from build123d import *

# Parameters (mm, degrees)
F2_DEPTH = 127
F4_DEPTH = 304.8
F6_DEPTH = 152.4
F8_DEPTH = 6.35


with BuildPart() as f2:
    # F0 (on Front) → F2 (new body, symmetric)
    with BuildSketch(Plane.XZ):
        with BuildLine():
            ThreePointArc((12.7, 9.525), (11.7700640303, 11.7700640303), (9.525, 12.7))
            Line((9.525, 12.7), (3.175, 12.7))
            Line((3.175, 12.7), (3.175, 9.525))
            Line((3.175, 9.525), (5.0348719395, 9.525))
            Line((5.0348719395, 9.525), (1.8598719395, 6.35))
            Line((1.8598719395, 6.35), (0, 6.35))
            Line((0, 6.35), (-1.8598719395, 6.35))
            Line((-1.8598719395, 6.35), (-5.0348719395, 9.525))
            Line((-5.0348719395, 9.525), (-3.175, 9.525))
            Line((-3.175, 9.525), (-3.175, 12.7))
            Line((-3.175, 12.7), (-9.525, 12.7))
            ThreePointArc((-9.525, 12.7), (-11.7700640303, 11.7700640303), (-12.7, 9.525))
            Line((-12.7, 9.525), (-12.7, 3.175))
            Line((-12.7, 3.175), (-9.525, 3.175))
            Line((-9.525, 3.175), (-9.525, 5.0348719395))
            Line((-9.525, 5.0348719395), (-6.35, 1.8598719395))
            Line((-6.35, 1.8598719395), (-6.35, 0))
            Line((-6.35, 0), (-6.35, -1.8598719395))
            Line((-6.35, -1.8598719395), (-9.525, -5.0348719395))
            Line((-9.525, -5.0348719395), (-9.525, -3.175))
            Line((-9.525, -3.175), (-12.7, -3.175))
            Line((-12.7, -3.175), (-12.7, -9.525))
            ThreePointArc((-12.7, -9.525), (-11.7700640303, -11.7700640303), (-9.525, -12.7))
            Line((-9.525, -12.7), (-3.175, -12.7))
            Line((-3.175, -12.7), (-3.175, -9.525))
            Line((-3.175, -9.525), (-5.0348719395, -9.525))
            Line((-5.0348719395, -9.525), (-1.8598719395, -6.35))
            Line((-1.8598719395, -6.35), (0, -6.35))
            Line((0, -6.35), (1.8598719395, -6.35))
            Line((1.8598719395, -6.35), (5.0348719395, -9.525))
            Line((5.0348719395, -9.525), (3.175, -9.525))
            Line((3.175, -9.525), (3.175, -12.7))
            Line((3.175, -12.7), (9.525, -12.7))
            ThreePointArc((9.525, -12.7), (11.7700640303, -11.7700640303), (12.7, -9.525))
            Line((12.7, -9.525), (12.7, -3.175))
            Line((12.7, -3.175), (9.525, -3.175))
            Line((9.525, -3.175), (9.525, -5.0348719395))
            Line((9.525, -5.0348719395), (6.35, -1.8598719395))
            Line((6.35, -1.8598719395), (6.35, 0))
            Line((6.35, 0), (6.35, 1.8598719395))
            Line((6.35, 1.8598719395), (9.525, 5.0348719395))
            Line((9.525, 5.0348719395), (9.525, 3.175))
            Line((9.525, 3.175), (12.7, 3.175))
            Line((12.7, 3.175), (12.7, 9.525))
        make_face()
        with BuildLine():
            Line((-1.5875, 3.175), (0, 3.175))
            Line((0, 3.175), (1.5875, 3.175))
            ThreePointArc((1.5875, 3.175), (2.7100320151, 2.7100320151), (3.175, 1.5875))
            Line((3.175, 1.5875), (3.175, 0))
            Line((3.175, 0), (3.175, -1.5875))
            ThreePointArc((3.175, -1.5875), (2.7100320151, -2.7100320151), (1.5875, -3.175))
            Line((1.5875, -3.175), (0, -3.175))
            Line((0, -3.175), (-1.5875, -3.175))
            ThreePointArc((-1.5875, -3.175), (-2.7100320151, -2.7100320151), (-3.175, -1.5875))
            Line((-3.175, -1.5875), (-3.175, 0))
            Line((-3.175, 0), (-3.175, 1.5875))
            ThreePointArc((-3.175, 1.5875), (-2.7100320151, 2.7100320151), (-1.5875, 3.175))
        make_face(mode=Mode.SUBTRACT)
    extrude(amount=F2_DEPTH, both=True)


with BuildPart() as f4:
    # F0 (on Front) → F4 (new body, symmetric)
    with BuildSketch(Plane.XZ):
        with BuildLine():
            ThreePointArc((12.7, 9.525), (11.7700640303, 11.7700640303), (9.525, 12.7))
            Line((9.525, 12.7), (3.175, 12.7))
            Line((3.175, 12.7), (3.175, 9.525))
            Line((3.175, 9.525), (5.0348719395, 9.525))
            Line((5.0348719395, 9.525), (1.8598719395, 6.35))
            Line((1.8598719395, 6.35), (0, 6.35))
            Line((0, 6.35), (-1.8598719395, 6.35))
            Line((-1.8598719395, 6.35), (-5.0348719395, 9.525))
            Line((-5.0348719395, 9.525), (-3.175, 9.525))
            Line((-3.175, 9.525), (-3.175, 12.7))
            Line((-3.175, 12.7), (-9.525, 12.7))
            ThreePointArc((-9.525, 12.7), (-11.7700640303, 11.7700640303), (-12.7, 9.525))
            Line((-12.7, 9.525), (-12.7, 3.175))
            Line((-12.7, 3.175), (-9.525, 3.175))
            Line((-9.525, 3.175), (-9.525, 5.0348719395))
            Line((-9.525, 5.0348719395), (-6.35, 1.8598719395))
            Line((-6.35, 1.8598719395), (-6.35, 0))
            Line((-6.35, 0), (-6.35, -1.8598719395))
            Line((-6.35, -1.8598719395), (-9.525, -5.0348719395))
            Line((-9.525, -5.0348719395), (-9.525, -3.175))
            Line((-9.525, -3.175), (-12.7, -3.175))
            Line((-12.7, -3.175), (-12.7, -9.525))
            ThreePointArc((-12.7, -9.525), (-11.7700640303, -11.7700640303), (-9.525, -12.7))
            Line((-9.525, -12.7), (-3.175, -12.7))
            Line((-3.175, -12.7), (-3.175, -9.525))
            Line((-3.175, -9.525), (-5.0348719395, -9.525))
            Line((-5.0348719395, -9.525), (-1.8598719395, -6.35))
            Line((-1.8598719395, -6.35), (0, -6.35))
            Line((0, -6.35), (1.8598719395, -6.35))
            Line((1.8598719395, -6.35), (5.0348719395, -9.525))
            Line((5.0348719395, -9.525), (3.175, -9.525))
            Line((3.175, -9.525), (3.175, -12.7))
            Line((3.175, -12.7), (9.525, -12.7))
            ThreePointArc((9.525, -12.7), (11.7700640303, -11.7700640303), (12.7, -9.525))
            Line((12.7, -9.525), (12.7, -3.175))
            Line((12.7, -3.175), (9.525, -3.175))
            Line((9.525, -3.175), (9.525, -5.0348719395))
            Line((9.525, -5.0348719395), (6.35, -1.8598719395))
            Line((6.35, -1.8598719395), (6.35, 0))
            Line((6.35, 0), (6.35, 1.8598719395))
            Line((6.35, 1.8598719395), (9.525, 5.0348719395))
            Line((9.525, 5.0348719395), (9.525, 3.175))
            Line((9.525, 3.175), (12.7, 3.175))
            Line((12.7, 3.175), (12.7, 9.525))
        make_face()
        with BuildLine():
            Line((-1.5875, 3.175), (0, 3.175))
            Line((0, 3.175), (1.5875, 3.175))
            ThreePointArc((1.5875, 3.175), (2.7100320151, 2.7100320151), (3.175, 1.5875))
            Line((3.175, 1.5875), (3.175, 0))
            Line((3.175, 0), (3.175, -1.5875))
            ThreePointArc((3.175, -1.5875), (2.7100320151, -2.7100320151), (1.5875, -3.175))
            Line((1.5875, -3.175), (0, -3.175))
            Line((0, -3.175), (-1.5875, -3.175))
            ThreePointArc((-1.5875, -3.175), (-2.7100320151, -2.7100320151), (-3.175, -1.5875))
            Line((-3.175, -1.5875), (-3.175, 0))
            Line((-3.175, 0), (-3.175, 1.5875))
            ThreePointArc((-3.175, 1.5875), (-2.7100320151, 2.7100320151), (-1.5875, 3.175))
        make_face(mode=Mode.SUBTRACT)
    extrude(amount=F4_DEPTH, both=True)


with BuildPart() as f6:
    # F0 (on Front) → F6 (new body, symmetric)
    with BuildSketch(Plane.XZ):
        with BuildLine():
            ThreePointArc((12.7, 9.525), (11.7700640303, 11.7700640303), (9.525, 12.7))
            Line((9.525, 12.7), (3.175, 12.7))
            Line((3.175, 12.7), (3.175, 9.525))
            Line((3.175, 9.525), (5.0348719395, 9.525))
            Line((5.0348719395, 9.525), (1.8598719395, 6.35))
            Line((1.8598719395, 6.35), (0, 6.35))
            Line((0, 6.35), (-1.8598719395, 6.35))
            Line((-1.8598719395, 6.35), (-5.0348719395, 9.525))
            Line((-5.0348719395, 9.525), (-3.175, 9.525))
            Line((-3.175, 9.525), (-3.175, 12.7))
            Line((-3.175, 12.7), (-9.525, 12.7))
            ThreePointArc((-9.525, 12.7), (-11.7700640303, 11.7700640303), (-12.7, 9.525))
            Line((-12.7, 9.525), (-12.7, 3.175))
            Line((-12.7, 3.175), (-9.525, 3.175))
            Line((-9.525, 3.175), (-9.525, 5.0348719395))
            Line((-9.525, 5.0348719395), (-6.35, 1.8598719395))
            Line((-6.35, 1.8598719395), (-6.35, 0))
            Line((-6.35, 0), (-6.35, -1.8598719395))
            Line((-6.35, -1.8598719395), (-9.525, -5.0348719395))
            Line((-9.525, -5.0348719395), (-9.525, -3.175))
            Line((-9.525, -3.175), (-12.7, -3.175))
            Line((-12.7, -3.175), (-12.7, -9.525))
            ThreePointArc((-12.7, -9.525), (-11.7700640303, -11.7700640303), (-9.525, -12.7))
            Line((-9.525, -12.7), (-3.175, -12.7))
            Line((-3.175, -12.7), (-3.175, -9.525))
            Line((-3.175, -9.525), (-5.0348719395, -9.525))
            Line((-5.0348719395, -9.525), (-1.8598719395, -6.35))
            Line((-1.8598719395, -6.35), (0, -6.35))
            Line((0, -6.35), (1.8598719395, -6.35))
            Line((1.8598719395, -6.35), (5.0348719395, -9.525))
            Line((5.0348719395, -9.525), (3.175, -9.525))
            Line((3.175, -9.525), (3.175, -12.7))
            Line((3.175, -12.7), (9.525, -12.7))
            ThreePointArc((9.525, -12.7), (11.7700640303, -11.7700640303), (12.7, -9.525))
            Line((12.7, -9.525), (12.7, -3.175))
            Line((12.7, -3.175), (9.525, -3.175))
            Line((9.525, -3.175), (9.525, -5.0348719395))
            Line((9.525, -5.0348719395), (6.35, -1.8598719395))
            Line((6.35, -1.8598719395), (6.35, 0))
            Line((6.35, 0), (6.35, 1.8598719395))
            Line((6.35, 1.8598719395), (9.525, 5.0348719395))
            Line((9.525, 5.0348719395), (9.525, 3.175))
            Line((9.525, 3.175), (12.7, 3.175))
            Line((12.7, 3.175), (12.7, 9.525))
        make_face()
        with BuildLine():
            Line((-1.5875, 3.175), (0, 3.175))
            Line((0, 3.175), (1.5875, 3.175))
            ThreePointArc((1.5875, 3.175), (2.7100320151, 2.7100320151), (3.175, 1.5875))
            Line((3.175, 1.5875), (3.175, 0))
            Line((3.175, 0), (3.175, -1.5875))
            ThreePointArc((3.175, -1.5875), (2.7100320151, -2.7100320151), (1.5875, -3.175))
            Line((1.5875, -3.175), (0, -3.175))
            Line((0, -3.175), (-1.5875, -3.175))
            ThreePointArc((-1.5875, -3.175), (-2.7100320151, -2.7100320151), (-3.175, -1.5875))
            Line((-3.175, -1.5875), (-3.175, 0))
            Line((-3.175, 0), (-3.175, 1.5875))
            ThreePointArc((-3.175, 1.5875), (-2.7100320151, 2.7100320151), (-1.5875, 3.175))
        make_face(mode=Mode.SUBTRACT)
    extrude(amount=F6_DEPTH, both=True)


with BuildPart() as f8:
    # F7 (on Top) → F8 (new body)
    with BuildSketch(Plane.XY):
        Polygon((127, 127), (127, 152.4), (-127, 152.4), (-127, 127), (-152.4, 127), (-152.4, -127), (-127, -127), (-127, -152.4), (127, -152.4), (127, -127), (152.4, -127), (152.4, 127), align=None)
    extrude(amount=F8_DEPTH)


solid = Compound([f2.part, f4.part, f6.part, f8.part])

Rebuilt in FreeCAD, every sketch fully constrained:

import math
import FreeCAD as App
import Part
import Sketcher

V = App.Vector
Q = App.Units.Quantity

doc = App.newDocument("Part")
params = doc.addObject("Spreadsheet::Sheet", "Params")
for row, (alias, value) in enumerate([
    ("sketch1_radius", "0.125 in"),
    ("sketch1_radius2", "0.0625 in"),
    ("sketch1_width", "0.25 in"),
    ("pad1_length", "10 in"),
    ("sketch2_radius", "0.125 in"),
    ("sketch2_radius2", "0.0625 in"),
    ("sketch2_width", "0.25 in"),
    ("pad2_length", "24 in"),
    ("sketch3_radius", "0.125 in"),
    ("sketch3_radius2", "0.0625 in"),
    ("sketch3_width", "0.25 in"),
    ("pad3_length", "12 in"),
    ("sketch4_width", "10 in"),
    ("sketch4_width2", "1 in"),
    ("pad4_length", "0.25 in"),
], start=1):
    params.set(f"A{row}", alias)
    params.set(f"B{row}", "=" + value)
    params.setAlias(f"B{row}", alias)

body = doc.addObject("PartDesign::Body", "Body")

sketch1 = body.newObject("Sketcher::SketchObject", "Sketch")
sketch1.AttachmentSupport = (doc.getObject("XZ_Plane"), [""])
sketch1.MapMode = "FlatFace"
sketch1.addGeometry([
    Part.ArcOfCircle(Part.Circle(V(9.5, 9.5, 0), V(0, 0, 1), 3.2), math.radians(0), math.radians(90)),
    Part.LineSegment(V(9.5, 12.7, 0), V(3.2, 12.7, 0)),
    Part.LineSegment(V(3.2, 12.7, 0), V(3.2, 9.5, 0)),
    Part.LineSegment(V(3.2, 9.5, 0), V(5, 9.5, 0)),
    Part.LineSegment(V(5, 9.5, 0), V(1.9, 6.3, 0)),
    Part.LineSegment(V(1.9, 6.3, 0), V(-1.9, 6.3, 0)),
    Part.LineSegment(V(-1.9, 6.3, 0), V(-5, 9.5, 0)),
    Part.LineSegment(V(-5, 9.5, 0), V(-3.2, 9.5, 0)),
    Part.LineSegment(V(-3.2, 9.5, 0), V(-3.2, 12.7, 0)),
    Part.LineSegment(V(-3.2, 12.7, 0), V(-9.5, 12.7, 0)),
    Part.ArcOfCircle(Part.Circle(V(-9.5, 9.5, 0), V(0, 0, 1), 3.2), math.radians(90), math.radians(180)),
    Part.LineSegment(V(-12.7, 9.5, 0), V(-12.7, 3.2, 0)),
    Part.LineSegment(V(-12.7, 3.2, 0), V(-9.5, 3.2, 0)),
    Part.LineSegment(V(-9.5, 3.2, 0), V(-9.5, 5, 0)),
    Part.LineSegment(V(-9.5, 5, 0), V(-6.3, 1.9, 0)),
    Part.LineSegment(V(-6.3, 1.9, 0), V(-6.3, -1.9, 0)),
    Part.LineSegment(V(-6.3, -1.9, 0), V(-9.5, -5, 0)),
    Part.LineSegment(V(-9.5, -5, 0), V(-9.5, -3.2, 0)),
    Part.LineSegment(V(-9.5, -3.2, 0), V(-12.7, -3.2, 0)),
    Part.LineSegment(V(-12.7, -3.2, 0), V(-12.7, -9.5, 0)),
    Part.ArcOfCircle(Part.Circle(V(-9.5, -9.5, 0), V(0, 0, 1), 3.2), math.radians(180), math.radians(270)),
    Part.LineSegment(V(-9.5, -12.7, 0), V(-3.2, -12.7, 0)),
    Part.LineSegment(V(-3.2, -12.7, 0), V(-3.2, -9.5, 0)),
    Part.LineSegment(V(-3.2, -9.5, 0), V(-5, -9.5, 0)),
    Part.LineSegment(V(-5, -9.5, 0), V(-1.9, -6.3, 0)),
    Part.LineSegment(V(-1.9, -6.3, 0), V(1.9, -6.3, 0)),
    Part.LineSegment(V(1.9, -6.3, 0), V(5, -9.5, 0)),
    Part.LineSegment(V(5, -9.5, 0), V(3.2, -9.5, 0)),
    Part.LineSegment(V(3.2, -9.5, 0), V(3.2, -12.7, 0)),
    Part.LineSegment(V(3.2, -12.7, 0), V(9.5, -12.7, 0)),
    Part.ArcOfCircle(Part.Circle(V(9.5, -9.5, 0), V(0, 0, 1), 3.2), math.radians(-90), math.radians(0)),
    Part.LineSegment(V(12.7, -9.5, 0), V(12.7, -3.2, 0)),
    Part.LineSegment(V(12.7, -3.2, 0), V(9.5, -3.2, 0)),
    Part.LineSegment(V(9.5, -3.2, 0), V(9.5, -5, 0)),
    Part.LineSegment(V(9.5, -5, 0), V(6.3, -1.9, 0)),
    Part.LineSegment(V(6.3, -1.9, 0), V(6.3, 1.9, 0)),
    Part.LineSegment(V(6.3, 1.9, 0), V(9.5, 5, 0)),
    Part.LineSegment(V(9.5, 5, 0), V(9.5, 3.2, 0)),
    Part.LineSegment(V(9.5, 3.2, 0), V(12.7, 3.2, 0)),
    Part.LineSegment(V(12.7, 3.2, 0), V(12.7, 9.5, 0)),
    Part.ArcOfCircle(Part.Circle(V(-1.6, 1.6, 0), V(0, 0, 1), 1.6), math.radians(90), math.radians(180)),
    Part.LineSegment(V(-1.6, 3.2, 0), V(1.6, 3.2, 0)),
    Part.ArcOfCircle(Part.Circle(V(1.6, 1.6, 0), V(0, 0, 1), 1.6), math.radians(0), math.radians(90)),
    Part.LineSegment(V(3.2, 1.6, 0), V(3.2, -1.6, 0)),
    Part.ArcOfCircle(Part.Circle(V(1.6, -1.6, 0), V(0, 0, 1), 1.6), math.radians(-90), math.radians(0)),
    Part.LineSegment(V(1.6, -3.2, 0), V(-1.6, -3.2, 0)),
    Part.ArcOfCircle(Part.Circle(V(-1.6, -1.6, 0), V(0, 0, 1), 1.6), math.radians(180), math.radians(270)),
    Part.LineSegment(V(-3.2, -1.6, 0), V(-3.2, 1.6, 0)),
], False)
sketch1.addConstraint([
    Sketcher.Constraint("Tangent", 0, 2, 1, 1),
    Sketcher.Constraint("Coincident", 1, 2, 2, 1),
    Sketcher.Constraint("Coincident", 2, 2, 3, 1),
    Sketcher.Constraint("Coincident", 3, 2, 4, 1),
    Sketcher.Constraint("Coincident", 4, 2, 5, 1),
    Sketcher.Constraint("Coincident", 5, 2, 6, 1),
    Sketcher.Constraint("Coincident", 6, 2, 7, 1),
    Sketcher.Constraint("Coincident", 7, 2, 8, 1),
    Sketcher.Constraint("Coincident", 8, 2, 9, 1),
    Sketcher.Constraint("Tangent", 9, 2, 10, 1),
    Sketcher.Constraint("Tangent", 10, 2, 11, 1),
    Sketcher.Constraint("Coincident", 11, 2, 12, 1),
    Sketcher.Constraint("Coincident", 12, 2, 13, 1),
    Sketcher.Constraint("Coincident", 13, 2, 14, 1),
    Sketcher.Constraint("Coincident", 14, 2, 15, 1),
    Sketcher.Constraint("Coincident", 15, 2, 16, 1),
    Sketcher.Constraint("Coincident", 16, 2, 17, 1),
    Sketcher.Constraint("Coincident", 17, 2, 18, 1),
    Sketcher.Constraint("Coincident", 18, 2, 19, 1),
    Sketcher.Constraint("Tangent", 19, 2, 20, 1),
    Sketcher.Constraint("Tangent", 20, 2, 21, 1),
    Sketcher.Constraint("Coincident", 21, 2, 22, 1),
    Sketcher.Constraint("Coincident", 22, 2, 23, 1),
    Sketcher.Constraint("Coincident", 23, 2, 24, 1),
    Sketcher.Constraint("Coincident", 24, 2, 25, 1),
    Sketcher.Constraint("Coincident", 25, 2, 26, 1),
    Sketcher.Constraint("Coincident", 26, 2, 27, 1),
    Sketcher.Constraint("Coincident", 27, 2, 28, 1),
    Sketcher.Constraint("Coincident", 28, 2, 29, 1),
    Sketcher.Constraint("Tangent", 29, 2, 30, 1),
    Sketcher.Constraint("Tangent", 30, 2, 31, 1),
    Sketcher.Constraint("Coincident", 31, 2, 32, 1),
    Sketcher.Constraint("Coincident", 32, 2, 33, 1),
    Sketcher.Constraint("Coincident", 33, 2, 34, 1),
    Sketcher.Constraint("Coincident", 34, 2, 35, 1),
    Sketcher.Constraint("Coincident", 35, 2, 36, 1),
    Sketcher.Constraint("Coincident", 36, 2, 37, 1),
    Sketcher.Constraint("Coincident", 37, 2, 38, 1),
    Sketcher.Constraint("Coincident", 38, 2, 39, 1),
    Sketcher.Constraint("Tangent", 39, 2, 0, 1),
    Sketcher.Constraint("Tangent", 40, 1, 41, 1),
    Sketcher.Constraint("Tangent", 41, 2, 42, 2),
    Sketcher.Constraint("Tangent", 42, 1, 43, 1),
    Sketcher.Constraint("Tangent", 43, 2, 44, 2),
    Sketcher.Constraint("Tangent", 44, 1, 45, 1),
    Sketcher.Constraint("Tangent", 45, 2, 46, 2),
    Sketcher.Constraint("Tangent", 46, 1, 47, 1),
    Sketcher.Constraint("Tangent", 47, 2, 40, 2),
    Sketcher.Constraint("Horizontal", 1),
    Sketcher.Constraint("Vertical", 2),
    Sketcher.Constraint("Horizontal", 3),
    Sketcher.Constraint("Horizontal", 5),
    Sketcher.Constraint("Horizontal", 7),
    Sketcher.Constraint("Vertical", 8),
    Sketcher.Constraint("Horizontal", 9),
    Sketcher.Constraint("Vertical", 11),
    Sketcher.Constraint("Horizontal", 12),
    Sketcher.Constraint("Vertical", 13),
    Sketcher.Constraint("Vertical", 15),
    Sketcher.Constraint("Vertical", 17),
    Sketcher.Constraint("Horizontal", 18),
    Sketcher.Constraint("Vertical", 19),
    Sketcher.Constraint("Horizontal", 21),
    Sketcher.Constraint("Vertical", 22),
    Sketcher.Constraint("Horizontal", 23),
    Sketcher.Constraint("Horizontal", 25),
    Sketcher.Constraint("Horizontal", 27),
    Sketcher.Constraint("Vertical", 28),
    Sketcher.Constraint("Horizontal", 29),
    Sketcher.Constraint("Vertical", 31),
    Sketcher.Constraint("Horizontal", 32),
    Sketcher.Constraint("Vertical", 33),
    Sketcher.Constraint("Vertical", 35),
    Sketcher.Constraint("Vertical", 37),
    Sketcher.Constraint("Horizontal", 38),
    Sketcher.Constraint("Vertical", 39),
    Sketcher.Constraint("Horizontal", 41),
    Sketcher.Constraint("Vertical", 43),
    Sketcher.Constraint("Horizontal", 45),
    Sketcher.Constraint("Vertical", 47),
    Sketcher.Constraint("Equal", 0, 10),
    Sketcher.Constraint("Equal", 10, 20),
    Sketcher.Constraint("Equal", 20, 30),
    Sketcher.Constraint("Equal", 40, 42),
    Sketcher.Constraint("Equal", 42, 44),
    Sketcher.Constraint("Equal", 44, 46),
    Sketcher.Constraint("Symmetric", 0, 3, 20, 3, -1, 1),
    Sketcher.Constraint("Symmetric", 10, 3, 30, 3, -1, 1),
    Sketcher.Constraint("Symmetric", 40, 3, 44, 3, -1, 1),
    Sketcher.Constraint("Symmetric", 2, 2, 22, 2, -1, 1),
    Sketcher.Constraint("Symmetric", 4, 2, 24, 2, -1, 1),
    Sketcher.Constraint("Symmetric", 6, 2, 26, 2, -1, 1),
    Sketcher.Constraint("Symmetric", 12, 2, 32, 2, -1, 1),
    Sketcher.Constraint("Symmetric", 14, 2, 34, 2, -1, 1),
    Sketcher.Constraint("Symmetric", 16, 2, 36, 2, -1, 1),
    Sketcher.Constraint("Symmetric", 0, 3, 10, 3, -2),
    Sketcher.Constraint("Symmetric", 3, 2, 6, 2, -2),
    Sketcher.Constraint("Symmetric", 17, 2, 32, 2, -2),
    Sketcher.Constraint("Perpendicular", 4, 6),
    Sketcher.Constraint("Parallel", 6, 14),
    Sketcher.Constraint("Perpendicular", 14, 16),
    Sketcher.Constraint("Parallel", 16, 24),
    Sketcher.Constraint("Perpendicular", 24, 26),
    Sketcher.Constraint("Parallel", 26, 34),
    Sketcher.Constraint("Perpendicular", 34, 36),
    Sketcher.Constraint("Horizontal", 10, 3, 2, 2),
    Sketcher.Constraint("Horizontal", 16, 2, 33, 2),
    Sketcher.Constraint("Horizontal", 15, 2, 34, 2),
    Sketcher.Constraint("Horizontal", 12, 2, 37, 2),
    Sketcher.Constraint("Horizontal", 38, 2, 40, 1),
    Sketcher.Constraint("Vertical", 9, 2, 12, 2),
    Sketcher.Constraint("Vertical", 8, 2, 21, 2),
    Sketcher.Constraint("Vertical", 2, 2, 27, 2),
    Sketcher.Constraint("Vertical", 28, 2, 42, 1),
    Sketcher.Constraint("Equal", 38, 41),
    Sketcher.Constraint("Equal", 29, 11),
    Sketcher.Constraint("Equal", 27, 13),
    Sketcher.Constraint("Equal", 25, 15),
    Sketcher.Constraint("Equal", 28, 43),
    Sketcher.Constraint("Radius", 0, Q("0.125 in")),
    Sketcher.Constraint("Radius", 40, Q("0.0625 in")),
    Sketcher.Constraint("DistanceX", 1, 2, 1, 1, Q("0.25 in")),
    Sketcher.Constraint("DistanceY", -1, 1, 4, 2, Q("0.25 in")),
    Sketcher.Constraint("DistanceX", 3, 1, 3, 2, Q("1.859872 mm")),
])
sketch1.setExpression("Constraints[119]", "Params.sketch1_radius")
sketch1.setExpression("Constraints[120]", "Params.sketch1_radius2")
sketch1.setExpression("Constraints[121]", "Params.sketch1_width")
pad1 = body.newObject("PartDesign::Pad", "Pad")
pad1.Profile = sketch1
pad1.setExpression("Length", "Params.pad1_length")
pad1.Midplane = True
body2 = doc.addObject("PartDesign::Body", "Body001")

sketch2 = body2.newObject("Sketcher::SketchObject", "Sketch001")
sketch2.AttachmentSupport = (doc.getObject("XZ_Plane001"), [""])
sketch2.MapMode = "FlatFace"
sketch2.addGeometry([
    Part.ArcOfCircle(Part.Circle(V(9.5, 9.5, 0), V(0, 0, 1), 3.2), math.radians(0), math.radians(90)),
    Part.LineSegment(V(9.5, 12.7, 0), V(3.2, 12.7, 0)),
    Part.LineSegment(V(3.2, 12.7, 0), V(3.2, 9.5, 0)),
    Part.LineSegment(V(3.2, 9.5, 0), V(5, 9.5, 0)),
    Part.LineSegment(V(5, 9.5, 0), V(1.9, 6.3, 0)),
    Part.LineSegment(V(1.9, 6.3, 0), V(-1.9, 6.3, 0)),
    Part.LineSegment(V(-1.9, 6.3, 0), V(-5, 9.5, 0)),
    Part.LineSegment(V(-5, 9.5, 0), V(-3.2, 9.5, 0)),
    Part.LineSegment(V(-3.2, 9.5, 0), V(-3.2, 12.7, 0)),
    Part.LineSegment(V(-3.2, 12.7, 0), V(-9.5, 12.7, 0)),
    Part.ArcOfCircle(Part.Circle(V(-9.5, 9.5, 0), V(0, 0, 1), 3.2), math.radians(90), math.radians(180)),
    Part.LineSegment(V(-12.7, 9.5, 0), V(-12.7, 3.2, 0)),
    Part.LineSegment(V(-12.7, 3.2, 0), V(-9.5, 3.2, 0)),
    Part.LineSegment(V(-9.5, 3.2, 0), V(-9.5, 5, 0)),
    Part.LineSegment(V(-9.5, 5, 0), V(-6.3, 1.9, 0)),
    Part.LineSegment(V(-6.3, 1.9, 0), V(-6.3, -1.9, 0)),
    Part.LineSegment(V(-6.3, -1.9, 0), V(-9.5, -5, 0)),
    Part.LineSegment(V(-9.5, -5, 0), V(-9.5, -3.2, 0)),
    Part.LineSegment(V(-9.5, -3.2, 0), V(-12.7, -3.2, 0)),
    Part.LineSegment(V(-12.7, -3.2, 0), V(-12.7, -9.5, 0)),
    Part.ArcOfCircle(Part.Circle(V(-9.5, -9.5, 0), V(0, 0, 1), 3.2), math.radians(180), math.radians(270)),
    Part.LineSegment(V(-9.5, -12.7, 0), V(-3.2, -12.7, 0)),
    Part.LineSegment(V(-3.2, -12.7, 0), V(-3.2, -9.5, 0)),
    Part.LineSegment(V(-3.2, -9.5, 0), V(-5, -9.5, 0)),
    Part.LineSegment(V(-5, -9.5, 0), V(-1.9, -6.3, 0)),
    Part.LineSegment(V(-1.9, -6.3, 0), V(1.9, -6.3, 0)),
    Part.LineSegment(V(1.9, -6.3, 0), V(5, -9.5, 0)),
    Part.LineSegment(V(5, -9.5, 0), V(3.2, -9.5, 0)),
    Part.LineSegment(V(3.2, -9.5, 0), V(3.2, -12.7, 0)),
    Part.LineSegment(V(3.2, -12.7, 0), V(9.5, -12.7, 0)),
    Part.ArcOfCircle(Part.Circle(V(9.5, -9.5, 0), V(0, 0, 1), 3.2), math.radians(-90), math.radians(0)),
    Part.LineSegment(V(12.7, -9.5, 0), V(12.7, -3.2, 0)),
    Part.LineSegment(V(12.7, -3.2, 0), V(9.5, -3.2, 0)),
    Part.LineSegment(V(9.5, -3.2, 0), V(9.5, -5, 0)),
    Part.LineSegment(V(9.5, -5, 0), V(6.3, -1.9, 0)),
    Part.LineSegment(V(6.3, -1.9, 0), V(6.3, 1.9, 0)),
    Part.LineSegment(V(6.3, 1.9, 0), V(9.5, 5, 0)),
    Part.LineSegment(V(9.5, 5, 0), V(9.5, 3.2, 0)),
    Part.LineSegment(V(9.5, 3.2, 0), V(12.7, 3.2, 0)),
    Part.LineSegment(V(12.7, 3.2, 0), V(12.7, 9.5, 0)),
    Part.ArcOfCircle(Part.Circle(V(-1.6, 1.6, 0), V(0, 0, 1), 1.6), math.radians(90), math.radians(180)),
    Part.LineSegment(V(-1.6, 3.2, 0), V(1.6, 3.2, 0)),
    Part.ArcOfCircle(Part.Circle(V(1.6, 1.6, 0), V(0, 0, 1), 1.6), math.radians(0), math.radians(90)),
    Part.LineSegment(V(3.2, 1.6, 0), V(3.2, -1.6, 0)),
    Part.ArcOfCircle(Part.Circle(V(1.6, -1.6, 0), V(0, 0, 1), 1.6), math.radians(-90), math.radians(0)),
    Part.LineSegment(V(1.6, -3.2, 0), V(-1.6, -3.2, 0)),
    Part.ArcOfCircle(Part.Circle(V(-1.6, -1.6, 0), V(0, 0, 1), 1.6), math.radians(180), math.radians(270)),
    Part.LineSegment(V(-3.2, -1.6, 0), V(-3.2, 1.6, 0)),
], False)
sketch2.addConstraint([
    Sketcher.Constraint("Tangent", 0, 2, 1, 1),
    Sketcher.Constraint("Coincident", 1, 2, 2, 1),
    Sketcher.Constraint("Coincident", 2, 2, 3, 1),
    Sketcher.Constraint("Coincident", 3, 2, 4, 1),
    Sketcher.Constraint("Coincident", 4, 2, 5, 1),
    Sketcher.Constraint("Coincident", 5, 2, 6, 1),
    Sketcher.Constraint("Coincident", 6, 2, 7, 1),
    Sketcher.Constraint("Coincident", 7, 2, 8, 1),
    Sketcher.Constraint("Coincident", 8, 2, 9, 1),
    Sketcher.Constraint("Tangent", 9, 2, 10, 1),
    Sketcher.Constraint("Tangent", 10, 2, 11, 1),
    Sketcher.Constraint("Coincident", 11, 2, 12, 1),
    Sketcher.Constraint("Coincident", 12, 2, 13, 1),
    Sketcher.Constraint("Coincident", 13, 2, 14, 1),
    Sketcher.Constraint("Coincident", 14, 2, 15, 1),
    Sketcher.Constraint("Coincident", 15, 2, 16, 1),
    Sketcher.Constraint("Coincident", 16, 2, 17, 1),
    Sketcher.Constraint("Coincident", 17, 2, 18, 1),
    Sketcher.Constraint("Coincident", 18, 2, 19, 1),
    Sketcher.Constraint("Tangent", 19, 2, 20, 1),
    Sketcher.Constraint("Tangent", 20, 2, 21, 1),
    Sketcher.Constraint("Coincident", 21, 2, 22, 1),
    Sketcher.Constraint("Coincident", 22, 2, 23, 1),
    Sketcher.Constraint("Coincident", 23, 2, 24, 1),
    Sketcher.Constraint("Coincident", 24, 2, 25, 1),
    Sketcher.Constraint("Coincident", 25, 2, 26, 1),
    Sketcher.Constraint("Coincident", 26, 2, 27, 1),
    Sketcher.Constraint("Coincident", 27, 2, 28, 1),
    Sketcher.Constraint("Coincident", 28, 2, 29, 1),
    Sketcher.Constraint("Tangent", 29, 2, 30, 1),
    Sketcher.Constraint("Tangent", 30, 2, 31, 1),
    Sketcher.Constraint("Coincident", 31, 2, 32, 1),
    Sketcher.Constraint("Coincident", 32, 2, 33, 1),
    Sketcher.Constraint("Coincident", 33, 2, 34, 1),
    Sketcher.Constraint("Coincident", 34, 2, 35, 1),
    Sketcher.Constraint("Coincident", 35, 2, 36, 1),
    Sketcher.Constraint("Coincident", 36, 2, 37, 1),
    Sketcher.Constraint("Coincident", 37, 2, 38, 1),
    Sketcher.Constraint("Coincident", 38, 2, 39, 1),
    Sketcher.Constraint("Tangent", 39, 2, 0, 1),
    Sketcher.Constraint("Tangent", 40, 1, 41, 1),
    Sketcher.Constraint("Tangent", 41, 2, 42, 2),
    Sketcher.Constraint("Tangent", 42, 1, 43, 1),
    Sketcher.Constraint("Tangent", 43, 2, 44, 2),
    Sketcher.Constraint("Tangent", 44, 1, 45, 1),
    Sketcher.Constraint("Tangent", 45, 2, 46, 2),
    Sketcher.Constraint("Tangent", 46, 1, 47, 1),
    Sketcher.Constraint("Tangent", 47, 2, 40, 2),
    Sketcher.Constraint("Horizontal", 1),
    Sketcher.Constraint("Vertical", 2),
    Sketcher.Constraint("Horizontal", 3),
    Sketcher.Constraint("Horizontal", 5),
    Sketcher.Constraint("Horizontal", 7),
    Sketcher.Constraint("Vertical", 8),
    Sketcher.Constraint("Horizontal", 9),
    Sketcher.Constraint("Vertical", 11),
    Sketcher.Constraint("Horizontal", 12),
    Sketcher.Constraint("Vertical", 13),
    Sketcher.Constraint("Vertical", 15),
    Sketcher.Constraint("Vertical", 17),
    Sketcher.Constraint("Horizontal", 18),
    Sketcher.Constraint("Vertical", 19),
    Sketcher.Constraint("Horizontal", 21),
    Sketcher.Constraint("Vertical", 22),
    Sketcher.Constraint("Horizontal", 23),
    Sketcher.Constraint("Horizontal", 25),
    Sketcher.Constraint("Horizontal", 27),
    Sketcher.Constraint("Vertical", 28),
    Sketcher.Constraint("Horizontal", 29),
    Sketcher.Constraint("Vertical", 31),
    Sketcher.Constraint("Horizontal", 32),
    Sketcher.Constraint("Vertical", 33),
    Sketcher.Constraint("Vertical", 35),
    Sketcher.Constraint("Vertical", 37),
    Sketcher.Constraint("Horizontal", 38),
    Sketcher.Constraint("Vertical", 39),
    Sketcher.Constraint("Horizontal", 41),
    Sketcher.Constraint("Vertical", 43),
    Sketcher.Constraint("Horizontal", 45),
    Sketcher.Constraint("Vertical", 47),
    Sketcher.Constraint("Equal", 0, 10),
    Sketcher.Constraint("Equal", 10, 20),
    Sketcher.Constraint("Equal", 20, 30),
    Sketcher.Constraint("Equal", 40, 42),
    Sketcher.Constraint("Equal", 42, 44),
    Sketcher.Constraint("Equal", 44, 46),
    Sketcher.Constraint("Symmetric", 0, 3, 20, 3, -1, 1),
    Sketcher.Constraint("Symmetric", 10, 3, 30, 3, -1, 1),
    Sketcher.Constraint("Symmetric", 40, 3, 44, 3, -1, 1),
    Sketcher.Constraint("Symmetric", 2, 2, 22, 2, -1, 1),
    Sketcher.Constraint("Symmetric", 4, 2, 24, 2, -1, 1),
    Sketcher.Constraint("Symmetric", 6, 2, 26, 2, -1, 1),
    Sketcher.Constraint("Symmetric", 12, 2, 32, 2, -1, 1),
    Sketcher.Constraint("Symmetric", 14, 2, 34, 2, -1, 1),
    Sketcher.Constraint("Symmetric", 16, 2, 36, 2, -1, 1),
    Sketcher.Constraint("Symmetric", 0, 3, 10, 3, -2),
    Sketcher.Constraint("Symmetric", 3, 2, 6, 2, -2),
    Sketcher.Constraint("Symmetric", 17, 2, 32, 2, -2),
    Sketcher.Constraint("Perpendicular", 4, 6),
    Sketcher.Constraint("Parallel", 6, 14),
    Sketcher.Constraint("Perpendicular", 14, 16),
    Sketcher.Constraint("Parallel", 16, 24),
    Sketcher.Constraint("Perpendicular", 24, 26),
    Sketcher.Constraint("Parallel", 26, 34),
    Sketcher.Constraint("Perpendicular", 34, 36),
    Sketcher.Constraint("Horizontal", 10, 3, 2, 2),
    Sketcher.Constraint("Horizontal", 16, 2, 33, 2),
    Sketcher.Constraint("Horizontal", 15, 2, 34, 2),
    Sketcher.Constraint("Horizontal", 12, 2, 37, 2),
    Sketcher.Constraint("Horizontal", 38, 2, 40, 1),
    Sketcher.Constraint("Vertical", 9, 2, 12, 2),
    Sketcher.Constraint("Vertical", 8, 2, 21, 2),
    Sketcher.Constraint("Vertical", 2, 2, 27, 2),
    Sketcher.Constraint("Vertical", 28, 2, 42, 1),
    Sketcher.Constraint("Equal", 38, 41),
    Sketcher.Constraint("Equal", 29, 11),
    Sketcher.Constraint("Equal", 27, 13),
    Sketcher.Constraint("Equal", 25, 15),
    Sketcher.Constraint("Equal", 28, 43),
    Sketcher.Constraint("Radius", 0, Q("0.125 in")),
    Sketcher.Constraint("Radius", 40, Q("0.0625 in")),
    Sketcher.Constraint("DistanceX", 1, 2, 1, 1, Q("0.25 in")),
    Sketcher.Constraint("DistanceY", -1, 1, 4, 2, Q("0.25 in")),
    Sketcher.Constraint("DistanceX", 3, 1, 3, 2, Q("1.859872 mm")),
])
sketch2.setExpression("Constraints[119]", "Params.sketch2_radius")
sketch2.setExpression("Constraints[120]", "Params.sketch2_radius2")
sketch2.setExpression("Constraints[121]", "Params.sketch2_width")
pad2 = body2.newObject("PartDesign::Pad", "Pad001")
pad2.Profile = sketch2
pad2.setExpression("Length", "Params.pad2_length")
pad2.Midplane = True
body3 = doc.addObject("PartDesign::Body", "Body002")

sketch3 = body3.newObject("Sketcher::SketchObject", "Sketch002")
sketch3.AttachmentSupport = (doc.getObject("XZ_Plane002"), [""])
sketch3.MapMode = "FlatFace"
sketch3.addGeometry([
    Part.ArcOfCircle(Part.Circle(V(9.5, 9.5, 0), V(0, 0, 1), 3.2), math.radians(0), math.radians(90)),
    Part.LineSegment(V(9.5, 12.7, 0), V(3.2, 12.7, 0)),
    Part.LineSegment(V(3.2, 12.7, 0), V(3.2, 9.5, 0)),
    Part.LineSegment(V(3.2, 9.5, 0), V(5, 9.5, 0)),
    Part.LineSegment(V(5, 9.5, 0), V(1.9, 6.3, 0)),
    Part.LineSegment(V(1.9, 6.3, 0), V(-1.9, 6.3, 0)),
    Part.LineSegment(V(-1.9, 6.3, 0), V(-5, 9.5, 0)),
    Part.LineSegment(V(-5, 9.5, 0), V(-3.2, 9.5, 0)),
    Part.LineSegment(V(-3.2, 9.5, 0), V(-3.2, 12.7, 0)),
    Part.LineSegment(V(-3.2, 12.7, 0), V(-9.5, 12.7, 0)),
    Part.ArcOfCircle(Part.Circle(V(-9.5, 9.5, 0), V(0, 0, 1), 3.2), math.radians(90), math.radians(180)),
    Part.LineSegment(V(-12.7, 9.5, 0), V(-12.7, 3.2, 0)),
    Part.LineSegment(V(-12.7, 3.2, 0), V(-9.5, 3.2, 0)),
    Part.LineSegment(V(-9.5, 3.2, 0), V(-9.5, 5, 0)),
    Part.LineSegment(V(-9.5, 5, 0), V(-6.3, 1.9, 0)),
    Part.LineSegment(V(-6.3, 1.9, 0), V(-6.3, -1.9, 0)),
    Part.LineSegment(V(-6.3, -1.9, 0), V(-9.5, -5, 0)),
    Part.LineSegment(V(-9.5, -5, 0), V(-9.5, -3.2, 0)),
    Part.LineSegment(V(-9.5, -3.2, 0), V(-12.7, -3.2, 0)),
    Part.LineSegment(V(-12.7, -3.2, 0), V(-12.7, -9.5, 0)),
    Part.ArcOfCircle(Part.Circle(V(-9.5, -9.5, 0), V(0, 0, 1), 3.2), math.radians(180), math.radians(270)),
    Part.LineSegment(V(-9.5, -12.7, 0), V(-3.2, -12.7, 0)),
    Part.LineSegment(V(-3.2, -12.7, 0), V(-3.2, -9.5, 0)),
    Part.LineSegment(V(-3.2, -9.5, 0), V(-5, -9.5, 0)),
    Part.LineSegment(V(-5, -9.5, 0), V(-1.9, -6.3, 0)),
    Part.LineSegment(V(-1.9, -6.3, 0), V(1.9, -6.3, 0)),
    Part.LineSegment(V(1.9, -6.3, 0), V(5, -9.5, 0)),
    Part.LineSegment(V(5, -9.5, 0), V(3.2, -9.5, 0)),
    Part.LineSegment(V(3.2, -9.5, 0), V(3.2, -12.7, 0)),
    Part.LineSegment(V(3.2, -12.7, 0), V(9.5, -12.7, 0)),
    Part.ArcOfCircle(Part.Circle(V(9.5, -9.5, 0), V(0, 0, 1), 3.2), math.radians(-90), math.radians(0)),
    Part.LineSegment(V(12.7, -9.5, 0), V(12.7, -3.2, 0)),
    Part.LineSegment(V(12.7, -3.2, 0), V(9.5, -3.2, 0)),
    Part.LineSegment(V(9.5, -3.2, 0), V(9.5, -5, 0)),
    Part.LineSegment(V(9.5, -5, 0), V(6.3, -1.9, 0)),
    Part.LineSegment(V(6.3, -1.9, 0), V(6.3, 1.9, 0)),
    Part.LineSegment(V(6.3, 1.9, 0), V(9.5, 5, 0)),
    Part.LineSegment(V(9.5, 5, 0), V(9.5, 3.2, 0)),
    Part.LineSegment(V(9.5, 3.2, 0), V(12.7, 3.2, 0)),
    Part.LineSegment(V(12.7, 3.2, 0), V(12.7, 9.5, 0)),
    Part.ArcOfCircle(Part.Circle(V(-1.6, 1.6, 0), V(0, 0, 1), 1.6), math.radians(90), math.radians(180)),
    Part.LineSegment(V(-1.6, 3.2, 0), V(1.6, 3.2, 0)),
    Part.ArcOfCircle(Part.Circle(V(1.6, 1.6, 0), V(0, 0, 1), 1.6), math.radians(0), math.radians(90)),
    Part.LineSegment(V(3.2, 1.6, 0), V(3.2, -1.6, 0)),
    Part.ArcOfCircle(Part.Circle(V(1.6, -1.6, 0), V(0, 0, 1), 1.6), math.radians(-90), math.radians(0)),
    Part.LineSegment(V(1.6, -3.2, 0), V(-1.6, -3.2, 0)),
    Part.ArcOfCircle(Part.Circle(V(-1.6, -1.6, 0), V(0, 0, 1), 1.6), math.radians(180), math.radians(270)),
    Part.LineSegment(V(-3.2, -1.6, 0), V(-3.2, 1.6, 0)),
], False)
sketch3.addConstraint([
    Sketcher.Constraint("Tangent", 0, 2, 1, 1),
    Sketcher.Constraint("Coincident", 1, 2, 2, 1),
    Sketcher.Constraint("Coincident", 2, 2, 3, 1),
    Sketcher.Constraint("Coincident", 3, 2, 4, 1),
    Sketcher.Constraint("Coincident", 4, 2, 5, 1),
    Sketcher.Constraint("Coincident", 5, 2, 6, 1),
    Sketcher.Constraint("Coincident", 6, 2, 7, 1),
    Sketcher.Constraint("Coincident", 7, 2, 8, 1),
    Sketcher.Constraint("Coincident", 8, 2, 9, 1),
    Sketcher.Constraint("Tangent", 9, 2, 10, 1),
    Sketcher.Constraint("Tangent", 10, 2, 11, 1),
    Sketcher.Constraint("Coincident", 11, 2, 12, 1),
    Sketcher.Constraint("Coincident", 12, 2, 13, 1),
    Sketcher.Constraint("Coincident", 13, 2, 14, 1),
    Sketcher.Constraint("Coincident", 14, 2, 15, 1),
    Sketcher.Constraint("Coincident", 15, 2, 16, 1),
    Sketcher.Constraint("Coincident", 16, 2, 17, 1),
    Sketcher.Constraint("Coincident", 17, 2, 18, 1),
    Sketcher.Constraint("Coincident", 18, 2, 19, 1),
    Sketcher.Constraint("Tangent", 19, 2, 20, 1),
    Sketcher.Constraint("Tangent", 20, 2, 21, 1),
    Sketcher.Constraint("Coincident", 21, 2, 22, 1),
    Sketcher.Constraint("Coincident", 22, 2, 23, 1),
    Sketcher.Constraint("Coincident", 23, 2, 24, 1),
    Sketcher.Constraint("Coincident", 24, 2, 25, 1),
    Sketcher.Constraint("Coincident", 25, 2, 26, 1),
    Sketcher.Constraint("Coincident", 26, 2, 27, 1),
    Sketcher.Constraint("Coincident", 27, 2, 28, 1),
    Sketcher.Constraint("Coincident", 28, 2, 29, 1),
    Sketcher.Constraint("Tangent", 29, 2, 30, 1),
    Sketcher.Constraint("Tangent", 30, 2, 31, 1),
    Sketcher.Constraint("Coincident", 31, 2, 32, 1),
    Sketcher.Constraint("Coincident", 32, 2, 33, 1),
    Sketcher.Constraint("Coincident", 33, 2, 34, 1),
    Sketcher.Constraint("Coincident", 34, 2, 35, 1),
    Sketcher.Constraint("Coincident", 35, 2, 36, 1),
    Sketcher.Constraint("Coincident", 36, 2, 37, 1),
    Sketcher.Constraint("Coincident", 37, 2, 38, 1),
    Sketcher.Constraint("Coincident", 38, 2, 39, 1),
    Sketcher.Constraint("Tangent", 39, 2, 0, 1),
    Sketcher.Constraint("Tangent", 40, 1, 41, 1),
    Sketcher.Constraint("Tangent", 41, 2, 42, 2),
    Sketcher.Constraint("Tangent", 42, 1, 43, 1),
    Sketcher.Constraint("Tangent", 43, 2, 44, 2),
    Sketcher.Constraint("Tangent", 44, 1, 45, 1),
    Sketcher.Constraint("Tangent", 45, 2, 46, 2),
    Sketcher.Constraint("Tangent", 46, 1, 47, 1),
    Sketcher.Constraint("Tangent", 47, 2, 40, 2),
    Sketcher.Constraint("Horizontal", 1),
    Sketcher.Constraint("Vertical", 2),
    Sketcher.Constraint("Horizontal", 3),
    Sketcher.Constraint("Horizontal", 5),
    Sketcher.Constraint("Horizontal", 7),
    Sketcher.Constraint("Vertical", 8),
    Sketcher.Constraint("Horizontal", 9),
    Sketcher.Constraint("Vertical", 11),
    Sketcher.Constraint("Horizontal", 12),
    Sketcher.Constraint("Vertical", 13),
    Sketcher.Constraint("Vertical", 15),
    Sketcher.Constraint("Vertical", 17),
    Sketcher.Constraint("Horizontal", 18),
    Sketcher.Constraint("Vertical", 19),
    Sketcher.Constraint("Horizontal", 21),
    Sketcher.Constraint("Vertical", 22),
    Sketcher.Constraint("Horizontal", 23),
    Sketcher.Constraint("Horizontal", 25),
    Sketcher.Constraint("Horizontal", 27),
    Sketcher.Constraint("Vertical", 28),
    Sketcher.Constraint("Horizontal", 29),
    Sketcher.Constraint("Vertical", 31),
    Sketcher.Constraint("Horizontal", 32),
    Sketcher.Constraint("Vertical", 33),
    Sketcher.Constraint("Vertical", 35),
    Sketcher.Constraint("Vertical", 37),
    Sketcher.Constraint("Horizontal", 38),
    Sketcher.Constraint("Vertical", 39),
    Sketcher.Constraint("Horizontal", 41),
    Sketcher.Constraint("Vertical", 43),
    Sketcher.Constraint("Horizontal", 45),
    Sketcher.Constraint("Vertical", 47),
    Sketcher.Constraint("Equal", 0, 10),
    Sketcher.Constraint("Equal", 10, 20),
    Sketcher.Constraint("Equal", 20, 30),
    Sketcher.Constraint("Equal", 40, 42),
    Sketcher.Constraint("Equal", 42, 44),
    Sketcher.Constraint("Equal", 44, 46),
    Sketcher.Constraint("Symmetric", 0, 3, 20, 3, -1, 1),
    Sketcher.Constraint("Symmetric", 10, 3, 30, 3, -1, 1),
    Sketcher.Constraint("Symmetric", 40, 3, 44, 3, -1, 1),
    Sketcher.Constraint("Symmetric", 2, 2, 22, 2, -1, 1),
    Sketcher.Constraint("Symmetric", 4, 2, 24, 2, -1, 1),
    Sketcher.Constraint("Symmetric", 6, 2, 26, 2, -1, 1),
    Sketcher.Constraint("Symmetric", 12, 2, 32, 2, -1, 1),
    Sketcher.Constraint("Symmetric", 14, 2, 34, 2, -1, 1),
    Sketcher.Constraint("Symmetric", 16, 2, 36, 2, -1, 1),
    Sketcher.Constraint("Symmetric", 0, 3, 10, 3, -2),
    Sketcher.Constraint("Symmetric", 3, 2, 6, 2, -2),
    Sketcher.Constraint("Symmetric", 17, 2, 32, 2, -2),
    Sketcher.Constraint("Perpendicular", 4, 6),
    Sketcher.Constraint("Parallel", 6, 14),
    Sketcher.Constraint("Perpendicular", 14, 16),
    Sketcher.Constraint("Parallel", 16, 24),
    Sketcher.Constraint("Perpendicular", 24, 26),
    Sketcher.Constraint("Parallel", 26, 34),
    Sketcher.Constraint("Perpendicular", 34, 36),
    Sketcher.Constraint("Horizontal", 10, 3, 2, 2),
    Sketcher.Constraint("Horizontal", 16, 2, 33, 2),
    Sketcher.Constraint("Horizontal", 15, 2, 34, 2),
    Sketcher.Constraint("Horizontal", 12, 2, 37, 2),
    Sketcher.Constraint("Horizontal", 38, 2, 40, 1),
    Sketcher.Constraint("Vertical", 9, 2, 12, 2),
    Sketcher.Constraint("Vertical", 8, 2, 21, 2),
    Sketcher.Constraint("Vertical", 2, 2, 27, 2),
    Sketcher.Constraint("Vertical", 28, 2, 42, 1),
    Sketcher.Constraint("Equal", 38, 41),
    Sketcher.Constraint("Equal", 29, 11),
    Sketcher.Constraint("Equal", 27, 13),
    Sketcher.Constraint("Equal", 25, 15),
    Sketcher.Constraint("Equal", 28, 43),
    Sketcher.Constraint("Radius", 0, Q("0.125 in")),
    Sketcher.Constraint("Radius", 40, Q("0.0625 in")),
    Sketcher.Constraint("DistanceX", 1, 2, 1, 1, Q("0.25 in")),
    Sketcher.Constraint("DistanceY", -1, 1, 4, 2, Q("0.25 in")),
    Sketcher.Constraint("DistanceX", 3, 1, 3, 2, Q("1.859872 mm")),
])
sketch3.setExpression("Constraints[119]", "Params.sketch3_radius")
sketch3.setExpression("Constraints[120]", "Params.sketch3_radius2")
sketch3.setExpression("Constraints[121]", "Params.sketch3_width")
pad3 = body3.newObject("PartDesign::Pad", "Pad002")
pad3.Profile = sketch3
pad3.setExpression("Length", "Params.pad3_length")
pad3.Midplane = True
body4 = doc.addObject("PartDesign::Body", "Body003")

sketch4 = body4.newObject("Sketcher::SketchObject", "Sketch003")
sketch4.AttachmentSupport = (doc.getObject("XY_Plane003"), [""])
sketch4.MapMode = "FlatFace"
sketch4.addGeometry([
    Part.LineSegment(V(127, 127, 0), V(127, 152, 0)),
    Part.LineSegment(V(127, 152, 0), V(-127, 152, 0)),
    Part.LineSegment(V(-127, 152, 0), V(-127, 127, 0)),
    Part.LineSegment(V(-127, 127, 0), V(-152, 127, 0)),
    Part.LineSegment(V(-152, 127, 0), V(-152, -127, 0)),
    Part.LineSegment(V(-152, -127, 0), V(-127, -127, 0)),
    Part.LineSegment(V(-127, -127, 0), V(-127, -152, 0)),
    Part.LineSegment(V(-127, -152, 0), V(127, -152, 0)),
    Part.LineSegment(V(127, -152, 0), V(127, -127, 0)),
    Part.LineSegment(V(127, -127, 0), V(152, -127, 0)),
    Part.LineSegment(V(152, -127, 0), V(152, 127, 0)),
    Part.LineSegment(V(152, 127, 0), V(127, 127, 0)),
], False)
sketch4.addConstraint([
    Sketcher.Constraint("Coincident", 0, 2, 1, 1),
    Sketcher.Constraint("Coincident", 1, 2, 2, 1),
    Sketcher.Constraint("Coincident", 2, 2, 3, 1),
    Sketcher.Constraint("Coincident", 3, 2, 4, 1),
    Sketcher.Constraint("Coincident", 4, 2, 5, 1),
    Sketcher.Constraint("Coincident", 5, 2, 6, 1),
    Sketcher.Constraint("Coincident", 6, 2, 7, 1),
    Sketcher.Constraint("Coincident", 7, 2, 8, 1),
    Sketcher.Constraint("Coincident", 8, 2, 9, 1),
    Sketcher.Constraint("Coincident", 9, 2, 10, 1),
    Sketcher.Constraint("Coincident", 10, 2, 11, 1),
    Sketcher.Constraint("Coincident", 11, 2, 0, 1),
    Sketcher.Constraint("Vertical", 0),
    Sketcher.Constraint("Horizontal", 1),
    Sketcher.Constraint("Vertical", 2),
    Sketcher.Constraint("Horizontal", 3),
    Sketcher.Constraint("Vertical", 4),
    Sketcher.Constraint("Horizontal", 5),
    Sketcher.Constraint("Vertical", 6),
    Sketcher.Constraint("Horizontal", 7),
    Sketcher.Constraint("Vertical", 8),
    Sketcher.Constraint("Horizontal", 9),
    Sketcher.Constraint("Vertical", 10),
    Sketcher.Constraint("Horizontal", 11),
    Sketcher.Constraint("Symmetric", 0, 2, 6, 2, -1, 1),
    Sketcher.Constraint("Symmetric", 2, 2, 8, 2, -1, 1),
    Sketcher.Constraint("Symmetric", 4, 2, 10, 2, -1, 1),
    Sketcher.Constraint("Symmetric", 5, 2, 8, 2, -2),
    Sketcher.Constraint("Equal", 11, 0),
    Sketcher.Constraint("Equal", 7, 4),
    Sketcher.Constraint("DistanceX", 1, 2, 1, 1, Q("10 in")),
    Sketcher.Constraint("DistanceX", 3, 2, 3, 1, Q("1 in")),
])
sketch4.setExpression("Constraints[30]", "Params.sketch4_width")
sketch4.setExpression("Constraints[31]", "Params.sketch4_width2")
pad4 = body4.newObject("PartDesign::Pad", "Pad003")
pad4.Profile = sketch4
pad4.setExpression("Length", "Params.pad4_length")

doc.recompute()
